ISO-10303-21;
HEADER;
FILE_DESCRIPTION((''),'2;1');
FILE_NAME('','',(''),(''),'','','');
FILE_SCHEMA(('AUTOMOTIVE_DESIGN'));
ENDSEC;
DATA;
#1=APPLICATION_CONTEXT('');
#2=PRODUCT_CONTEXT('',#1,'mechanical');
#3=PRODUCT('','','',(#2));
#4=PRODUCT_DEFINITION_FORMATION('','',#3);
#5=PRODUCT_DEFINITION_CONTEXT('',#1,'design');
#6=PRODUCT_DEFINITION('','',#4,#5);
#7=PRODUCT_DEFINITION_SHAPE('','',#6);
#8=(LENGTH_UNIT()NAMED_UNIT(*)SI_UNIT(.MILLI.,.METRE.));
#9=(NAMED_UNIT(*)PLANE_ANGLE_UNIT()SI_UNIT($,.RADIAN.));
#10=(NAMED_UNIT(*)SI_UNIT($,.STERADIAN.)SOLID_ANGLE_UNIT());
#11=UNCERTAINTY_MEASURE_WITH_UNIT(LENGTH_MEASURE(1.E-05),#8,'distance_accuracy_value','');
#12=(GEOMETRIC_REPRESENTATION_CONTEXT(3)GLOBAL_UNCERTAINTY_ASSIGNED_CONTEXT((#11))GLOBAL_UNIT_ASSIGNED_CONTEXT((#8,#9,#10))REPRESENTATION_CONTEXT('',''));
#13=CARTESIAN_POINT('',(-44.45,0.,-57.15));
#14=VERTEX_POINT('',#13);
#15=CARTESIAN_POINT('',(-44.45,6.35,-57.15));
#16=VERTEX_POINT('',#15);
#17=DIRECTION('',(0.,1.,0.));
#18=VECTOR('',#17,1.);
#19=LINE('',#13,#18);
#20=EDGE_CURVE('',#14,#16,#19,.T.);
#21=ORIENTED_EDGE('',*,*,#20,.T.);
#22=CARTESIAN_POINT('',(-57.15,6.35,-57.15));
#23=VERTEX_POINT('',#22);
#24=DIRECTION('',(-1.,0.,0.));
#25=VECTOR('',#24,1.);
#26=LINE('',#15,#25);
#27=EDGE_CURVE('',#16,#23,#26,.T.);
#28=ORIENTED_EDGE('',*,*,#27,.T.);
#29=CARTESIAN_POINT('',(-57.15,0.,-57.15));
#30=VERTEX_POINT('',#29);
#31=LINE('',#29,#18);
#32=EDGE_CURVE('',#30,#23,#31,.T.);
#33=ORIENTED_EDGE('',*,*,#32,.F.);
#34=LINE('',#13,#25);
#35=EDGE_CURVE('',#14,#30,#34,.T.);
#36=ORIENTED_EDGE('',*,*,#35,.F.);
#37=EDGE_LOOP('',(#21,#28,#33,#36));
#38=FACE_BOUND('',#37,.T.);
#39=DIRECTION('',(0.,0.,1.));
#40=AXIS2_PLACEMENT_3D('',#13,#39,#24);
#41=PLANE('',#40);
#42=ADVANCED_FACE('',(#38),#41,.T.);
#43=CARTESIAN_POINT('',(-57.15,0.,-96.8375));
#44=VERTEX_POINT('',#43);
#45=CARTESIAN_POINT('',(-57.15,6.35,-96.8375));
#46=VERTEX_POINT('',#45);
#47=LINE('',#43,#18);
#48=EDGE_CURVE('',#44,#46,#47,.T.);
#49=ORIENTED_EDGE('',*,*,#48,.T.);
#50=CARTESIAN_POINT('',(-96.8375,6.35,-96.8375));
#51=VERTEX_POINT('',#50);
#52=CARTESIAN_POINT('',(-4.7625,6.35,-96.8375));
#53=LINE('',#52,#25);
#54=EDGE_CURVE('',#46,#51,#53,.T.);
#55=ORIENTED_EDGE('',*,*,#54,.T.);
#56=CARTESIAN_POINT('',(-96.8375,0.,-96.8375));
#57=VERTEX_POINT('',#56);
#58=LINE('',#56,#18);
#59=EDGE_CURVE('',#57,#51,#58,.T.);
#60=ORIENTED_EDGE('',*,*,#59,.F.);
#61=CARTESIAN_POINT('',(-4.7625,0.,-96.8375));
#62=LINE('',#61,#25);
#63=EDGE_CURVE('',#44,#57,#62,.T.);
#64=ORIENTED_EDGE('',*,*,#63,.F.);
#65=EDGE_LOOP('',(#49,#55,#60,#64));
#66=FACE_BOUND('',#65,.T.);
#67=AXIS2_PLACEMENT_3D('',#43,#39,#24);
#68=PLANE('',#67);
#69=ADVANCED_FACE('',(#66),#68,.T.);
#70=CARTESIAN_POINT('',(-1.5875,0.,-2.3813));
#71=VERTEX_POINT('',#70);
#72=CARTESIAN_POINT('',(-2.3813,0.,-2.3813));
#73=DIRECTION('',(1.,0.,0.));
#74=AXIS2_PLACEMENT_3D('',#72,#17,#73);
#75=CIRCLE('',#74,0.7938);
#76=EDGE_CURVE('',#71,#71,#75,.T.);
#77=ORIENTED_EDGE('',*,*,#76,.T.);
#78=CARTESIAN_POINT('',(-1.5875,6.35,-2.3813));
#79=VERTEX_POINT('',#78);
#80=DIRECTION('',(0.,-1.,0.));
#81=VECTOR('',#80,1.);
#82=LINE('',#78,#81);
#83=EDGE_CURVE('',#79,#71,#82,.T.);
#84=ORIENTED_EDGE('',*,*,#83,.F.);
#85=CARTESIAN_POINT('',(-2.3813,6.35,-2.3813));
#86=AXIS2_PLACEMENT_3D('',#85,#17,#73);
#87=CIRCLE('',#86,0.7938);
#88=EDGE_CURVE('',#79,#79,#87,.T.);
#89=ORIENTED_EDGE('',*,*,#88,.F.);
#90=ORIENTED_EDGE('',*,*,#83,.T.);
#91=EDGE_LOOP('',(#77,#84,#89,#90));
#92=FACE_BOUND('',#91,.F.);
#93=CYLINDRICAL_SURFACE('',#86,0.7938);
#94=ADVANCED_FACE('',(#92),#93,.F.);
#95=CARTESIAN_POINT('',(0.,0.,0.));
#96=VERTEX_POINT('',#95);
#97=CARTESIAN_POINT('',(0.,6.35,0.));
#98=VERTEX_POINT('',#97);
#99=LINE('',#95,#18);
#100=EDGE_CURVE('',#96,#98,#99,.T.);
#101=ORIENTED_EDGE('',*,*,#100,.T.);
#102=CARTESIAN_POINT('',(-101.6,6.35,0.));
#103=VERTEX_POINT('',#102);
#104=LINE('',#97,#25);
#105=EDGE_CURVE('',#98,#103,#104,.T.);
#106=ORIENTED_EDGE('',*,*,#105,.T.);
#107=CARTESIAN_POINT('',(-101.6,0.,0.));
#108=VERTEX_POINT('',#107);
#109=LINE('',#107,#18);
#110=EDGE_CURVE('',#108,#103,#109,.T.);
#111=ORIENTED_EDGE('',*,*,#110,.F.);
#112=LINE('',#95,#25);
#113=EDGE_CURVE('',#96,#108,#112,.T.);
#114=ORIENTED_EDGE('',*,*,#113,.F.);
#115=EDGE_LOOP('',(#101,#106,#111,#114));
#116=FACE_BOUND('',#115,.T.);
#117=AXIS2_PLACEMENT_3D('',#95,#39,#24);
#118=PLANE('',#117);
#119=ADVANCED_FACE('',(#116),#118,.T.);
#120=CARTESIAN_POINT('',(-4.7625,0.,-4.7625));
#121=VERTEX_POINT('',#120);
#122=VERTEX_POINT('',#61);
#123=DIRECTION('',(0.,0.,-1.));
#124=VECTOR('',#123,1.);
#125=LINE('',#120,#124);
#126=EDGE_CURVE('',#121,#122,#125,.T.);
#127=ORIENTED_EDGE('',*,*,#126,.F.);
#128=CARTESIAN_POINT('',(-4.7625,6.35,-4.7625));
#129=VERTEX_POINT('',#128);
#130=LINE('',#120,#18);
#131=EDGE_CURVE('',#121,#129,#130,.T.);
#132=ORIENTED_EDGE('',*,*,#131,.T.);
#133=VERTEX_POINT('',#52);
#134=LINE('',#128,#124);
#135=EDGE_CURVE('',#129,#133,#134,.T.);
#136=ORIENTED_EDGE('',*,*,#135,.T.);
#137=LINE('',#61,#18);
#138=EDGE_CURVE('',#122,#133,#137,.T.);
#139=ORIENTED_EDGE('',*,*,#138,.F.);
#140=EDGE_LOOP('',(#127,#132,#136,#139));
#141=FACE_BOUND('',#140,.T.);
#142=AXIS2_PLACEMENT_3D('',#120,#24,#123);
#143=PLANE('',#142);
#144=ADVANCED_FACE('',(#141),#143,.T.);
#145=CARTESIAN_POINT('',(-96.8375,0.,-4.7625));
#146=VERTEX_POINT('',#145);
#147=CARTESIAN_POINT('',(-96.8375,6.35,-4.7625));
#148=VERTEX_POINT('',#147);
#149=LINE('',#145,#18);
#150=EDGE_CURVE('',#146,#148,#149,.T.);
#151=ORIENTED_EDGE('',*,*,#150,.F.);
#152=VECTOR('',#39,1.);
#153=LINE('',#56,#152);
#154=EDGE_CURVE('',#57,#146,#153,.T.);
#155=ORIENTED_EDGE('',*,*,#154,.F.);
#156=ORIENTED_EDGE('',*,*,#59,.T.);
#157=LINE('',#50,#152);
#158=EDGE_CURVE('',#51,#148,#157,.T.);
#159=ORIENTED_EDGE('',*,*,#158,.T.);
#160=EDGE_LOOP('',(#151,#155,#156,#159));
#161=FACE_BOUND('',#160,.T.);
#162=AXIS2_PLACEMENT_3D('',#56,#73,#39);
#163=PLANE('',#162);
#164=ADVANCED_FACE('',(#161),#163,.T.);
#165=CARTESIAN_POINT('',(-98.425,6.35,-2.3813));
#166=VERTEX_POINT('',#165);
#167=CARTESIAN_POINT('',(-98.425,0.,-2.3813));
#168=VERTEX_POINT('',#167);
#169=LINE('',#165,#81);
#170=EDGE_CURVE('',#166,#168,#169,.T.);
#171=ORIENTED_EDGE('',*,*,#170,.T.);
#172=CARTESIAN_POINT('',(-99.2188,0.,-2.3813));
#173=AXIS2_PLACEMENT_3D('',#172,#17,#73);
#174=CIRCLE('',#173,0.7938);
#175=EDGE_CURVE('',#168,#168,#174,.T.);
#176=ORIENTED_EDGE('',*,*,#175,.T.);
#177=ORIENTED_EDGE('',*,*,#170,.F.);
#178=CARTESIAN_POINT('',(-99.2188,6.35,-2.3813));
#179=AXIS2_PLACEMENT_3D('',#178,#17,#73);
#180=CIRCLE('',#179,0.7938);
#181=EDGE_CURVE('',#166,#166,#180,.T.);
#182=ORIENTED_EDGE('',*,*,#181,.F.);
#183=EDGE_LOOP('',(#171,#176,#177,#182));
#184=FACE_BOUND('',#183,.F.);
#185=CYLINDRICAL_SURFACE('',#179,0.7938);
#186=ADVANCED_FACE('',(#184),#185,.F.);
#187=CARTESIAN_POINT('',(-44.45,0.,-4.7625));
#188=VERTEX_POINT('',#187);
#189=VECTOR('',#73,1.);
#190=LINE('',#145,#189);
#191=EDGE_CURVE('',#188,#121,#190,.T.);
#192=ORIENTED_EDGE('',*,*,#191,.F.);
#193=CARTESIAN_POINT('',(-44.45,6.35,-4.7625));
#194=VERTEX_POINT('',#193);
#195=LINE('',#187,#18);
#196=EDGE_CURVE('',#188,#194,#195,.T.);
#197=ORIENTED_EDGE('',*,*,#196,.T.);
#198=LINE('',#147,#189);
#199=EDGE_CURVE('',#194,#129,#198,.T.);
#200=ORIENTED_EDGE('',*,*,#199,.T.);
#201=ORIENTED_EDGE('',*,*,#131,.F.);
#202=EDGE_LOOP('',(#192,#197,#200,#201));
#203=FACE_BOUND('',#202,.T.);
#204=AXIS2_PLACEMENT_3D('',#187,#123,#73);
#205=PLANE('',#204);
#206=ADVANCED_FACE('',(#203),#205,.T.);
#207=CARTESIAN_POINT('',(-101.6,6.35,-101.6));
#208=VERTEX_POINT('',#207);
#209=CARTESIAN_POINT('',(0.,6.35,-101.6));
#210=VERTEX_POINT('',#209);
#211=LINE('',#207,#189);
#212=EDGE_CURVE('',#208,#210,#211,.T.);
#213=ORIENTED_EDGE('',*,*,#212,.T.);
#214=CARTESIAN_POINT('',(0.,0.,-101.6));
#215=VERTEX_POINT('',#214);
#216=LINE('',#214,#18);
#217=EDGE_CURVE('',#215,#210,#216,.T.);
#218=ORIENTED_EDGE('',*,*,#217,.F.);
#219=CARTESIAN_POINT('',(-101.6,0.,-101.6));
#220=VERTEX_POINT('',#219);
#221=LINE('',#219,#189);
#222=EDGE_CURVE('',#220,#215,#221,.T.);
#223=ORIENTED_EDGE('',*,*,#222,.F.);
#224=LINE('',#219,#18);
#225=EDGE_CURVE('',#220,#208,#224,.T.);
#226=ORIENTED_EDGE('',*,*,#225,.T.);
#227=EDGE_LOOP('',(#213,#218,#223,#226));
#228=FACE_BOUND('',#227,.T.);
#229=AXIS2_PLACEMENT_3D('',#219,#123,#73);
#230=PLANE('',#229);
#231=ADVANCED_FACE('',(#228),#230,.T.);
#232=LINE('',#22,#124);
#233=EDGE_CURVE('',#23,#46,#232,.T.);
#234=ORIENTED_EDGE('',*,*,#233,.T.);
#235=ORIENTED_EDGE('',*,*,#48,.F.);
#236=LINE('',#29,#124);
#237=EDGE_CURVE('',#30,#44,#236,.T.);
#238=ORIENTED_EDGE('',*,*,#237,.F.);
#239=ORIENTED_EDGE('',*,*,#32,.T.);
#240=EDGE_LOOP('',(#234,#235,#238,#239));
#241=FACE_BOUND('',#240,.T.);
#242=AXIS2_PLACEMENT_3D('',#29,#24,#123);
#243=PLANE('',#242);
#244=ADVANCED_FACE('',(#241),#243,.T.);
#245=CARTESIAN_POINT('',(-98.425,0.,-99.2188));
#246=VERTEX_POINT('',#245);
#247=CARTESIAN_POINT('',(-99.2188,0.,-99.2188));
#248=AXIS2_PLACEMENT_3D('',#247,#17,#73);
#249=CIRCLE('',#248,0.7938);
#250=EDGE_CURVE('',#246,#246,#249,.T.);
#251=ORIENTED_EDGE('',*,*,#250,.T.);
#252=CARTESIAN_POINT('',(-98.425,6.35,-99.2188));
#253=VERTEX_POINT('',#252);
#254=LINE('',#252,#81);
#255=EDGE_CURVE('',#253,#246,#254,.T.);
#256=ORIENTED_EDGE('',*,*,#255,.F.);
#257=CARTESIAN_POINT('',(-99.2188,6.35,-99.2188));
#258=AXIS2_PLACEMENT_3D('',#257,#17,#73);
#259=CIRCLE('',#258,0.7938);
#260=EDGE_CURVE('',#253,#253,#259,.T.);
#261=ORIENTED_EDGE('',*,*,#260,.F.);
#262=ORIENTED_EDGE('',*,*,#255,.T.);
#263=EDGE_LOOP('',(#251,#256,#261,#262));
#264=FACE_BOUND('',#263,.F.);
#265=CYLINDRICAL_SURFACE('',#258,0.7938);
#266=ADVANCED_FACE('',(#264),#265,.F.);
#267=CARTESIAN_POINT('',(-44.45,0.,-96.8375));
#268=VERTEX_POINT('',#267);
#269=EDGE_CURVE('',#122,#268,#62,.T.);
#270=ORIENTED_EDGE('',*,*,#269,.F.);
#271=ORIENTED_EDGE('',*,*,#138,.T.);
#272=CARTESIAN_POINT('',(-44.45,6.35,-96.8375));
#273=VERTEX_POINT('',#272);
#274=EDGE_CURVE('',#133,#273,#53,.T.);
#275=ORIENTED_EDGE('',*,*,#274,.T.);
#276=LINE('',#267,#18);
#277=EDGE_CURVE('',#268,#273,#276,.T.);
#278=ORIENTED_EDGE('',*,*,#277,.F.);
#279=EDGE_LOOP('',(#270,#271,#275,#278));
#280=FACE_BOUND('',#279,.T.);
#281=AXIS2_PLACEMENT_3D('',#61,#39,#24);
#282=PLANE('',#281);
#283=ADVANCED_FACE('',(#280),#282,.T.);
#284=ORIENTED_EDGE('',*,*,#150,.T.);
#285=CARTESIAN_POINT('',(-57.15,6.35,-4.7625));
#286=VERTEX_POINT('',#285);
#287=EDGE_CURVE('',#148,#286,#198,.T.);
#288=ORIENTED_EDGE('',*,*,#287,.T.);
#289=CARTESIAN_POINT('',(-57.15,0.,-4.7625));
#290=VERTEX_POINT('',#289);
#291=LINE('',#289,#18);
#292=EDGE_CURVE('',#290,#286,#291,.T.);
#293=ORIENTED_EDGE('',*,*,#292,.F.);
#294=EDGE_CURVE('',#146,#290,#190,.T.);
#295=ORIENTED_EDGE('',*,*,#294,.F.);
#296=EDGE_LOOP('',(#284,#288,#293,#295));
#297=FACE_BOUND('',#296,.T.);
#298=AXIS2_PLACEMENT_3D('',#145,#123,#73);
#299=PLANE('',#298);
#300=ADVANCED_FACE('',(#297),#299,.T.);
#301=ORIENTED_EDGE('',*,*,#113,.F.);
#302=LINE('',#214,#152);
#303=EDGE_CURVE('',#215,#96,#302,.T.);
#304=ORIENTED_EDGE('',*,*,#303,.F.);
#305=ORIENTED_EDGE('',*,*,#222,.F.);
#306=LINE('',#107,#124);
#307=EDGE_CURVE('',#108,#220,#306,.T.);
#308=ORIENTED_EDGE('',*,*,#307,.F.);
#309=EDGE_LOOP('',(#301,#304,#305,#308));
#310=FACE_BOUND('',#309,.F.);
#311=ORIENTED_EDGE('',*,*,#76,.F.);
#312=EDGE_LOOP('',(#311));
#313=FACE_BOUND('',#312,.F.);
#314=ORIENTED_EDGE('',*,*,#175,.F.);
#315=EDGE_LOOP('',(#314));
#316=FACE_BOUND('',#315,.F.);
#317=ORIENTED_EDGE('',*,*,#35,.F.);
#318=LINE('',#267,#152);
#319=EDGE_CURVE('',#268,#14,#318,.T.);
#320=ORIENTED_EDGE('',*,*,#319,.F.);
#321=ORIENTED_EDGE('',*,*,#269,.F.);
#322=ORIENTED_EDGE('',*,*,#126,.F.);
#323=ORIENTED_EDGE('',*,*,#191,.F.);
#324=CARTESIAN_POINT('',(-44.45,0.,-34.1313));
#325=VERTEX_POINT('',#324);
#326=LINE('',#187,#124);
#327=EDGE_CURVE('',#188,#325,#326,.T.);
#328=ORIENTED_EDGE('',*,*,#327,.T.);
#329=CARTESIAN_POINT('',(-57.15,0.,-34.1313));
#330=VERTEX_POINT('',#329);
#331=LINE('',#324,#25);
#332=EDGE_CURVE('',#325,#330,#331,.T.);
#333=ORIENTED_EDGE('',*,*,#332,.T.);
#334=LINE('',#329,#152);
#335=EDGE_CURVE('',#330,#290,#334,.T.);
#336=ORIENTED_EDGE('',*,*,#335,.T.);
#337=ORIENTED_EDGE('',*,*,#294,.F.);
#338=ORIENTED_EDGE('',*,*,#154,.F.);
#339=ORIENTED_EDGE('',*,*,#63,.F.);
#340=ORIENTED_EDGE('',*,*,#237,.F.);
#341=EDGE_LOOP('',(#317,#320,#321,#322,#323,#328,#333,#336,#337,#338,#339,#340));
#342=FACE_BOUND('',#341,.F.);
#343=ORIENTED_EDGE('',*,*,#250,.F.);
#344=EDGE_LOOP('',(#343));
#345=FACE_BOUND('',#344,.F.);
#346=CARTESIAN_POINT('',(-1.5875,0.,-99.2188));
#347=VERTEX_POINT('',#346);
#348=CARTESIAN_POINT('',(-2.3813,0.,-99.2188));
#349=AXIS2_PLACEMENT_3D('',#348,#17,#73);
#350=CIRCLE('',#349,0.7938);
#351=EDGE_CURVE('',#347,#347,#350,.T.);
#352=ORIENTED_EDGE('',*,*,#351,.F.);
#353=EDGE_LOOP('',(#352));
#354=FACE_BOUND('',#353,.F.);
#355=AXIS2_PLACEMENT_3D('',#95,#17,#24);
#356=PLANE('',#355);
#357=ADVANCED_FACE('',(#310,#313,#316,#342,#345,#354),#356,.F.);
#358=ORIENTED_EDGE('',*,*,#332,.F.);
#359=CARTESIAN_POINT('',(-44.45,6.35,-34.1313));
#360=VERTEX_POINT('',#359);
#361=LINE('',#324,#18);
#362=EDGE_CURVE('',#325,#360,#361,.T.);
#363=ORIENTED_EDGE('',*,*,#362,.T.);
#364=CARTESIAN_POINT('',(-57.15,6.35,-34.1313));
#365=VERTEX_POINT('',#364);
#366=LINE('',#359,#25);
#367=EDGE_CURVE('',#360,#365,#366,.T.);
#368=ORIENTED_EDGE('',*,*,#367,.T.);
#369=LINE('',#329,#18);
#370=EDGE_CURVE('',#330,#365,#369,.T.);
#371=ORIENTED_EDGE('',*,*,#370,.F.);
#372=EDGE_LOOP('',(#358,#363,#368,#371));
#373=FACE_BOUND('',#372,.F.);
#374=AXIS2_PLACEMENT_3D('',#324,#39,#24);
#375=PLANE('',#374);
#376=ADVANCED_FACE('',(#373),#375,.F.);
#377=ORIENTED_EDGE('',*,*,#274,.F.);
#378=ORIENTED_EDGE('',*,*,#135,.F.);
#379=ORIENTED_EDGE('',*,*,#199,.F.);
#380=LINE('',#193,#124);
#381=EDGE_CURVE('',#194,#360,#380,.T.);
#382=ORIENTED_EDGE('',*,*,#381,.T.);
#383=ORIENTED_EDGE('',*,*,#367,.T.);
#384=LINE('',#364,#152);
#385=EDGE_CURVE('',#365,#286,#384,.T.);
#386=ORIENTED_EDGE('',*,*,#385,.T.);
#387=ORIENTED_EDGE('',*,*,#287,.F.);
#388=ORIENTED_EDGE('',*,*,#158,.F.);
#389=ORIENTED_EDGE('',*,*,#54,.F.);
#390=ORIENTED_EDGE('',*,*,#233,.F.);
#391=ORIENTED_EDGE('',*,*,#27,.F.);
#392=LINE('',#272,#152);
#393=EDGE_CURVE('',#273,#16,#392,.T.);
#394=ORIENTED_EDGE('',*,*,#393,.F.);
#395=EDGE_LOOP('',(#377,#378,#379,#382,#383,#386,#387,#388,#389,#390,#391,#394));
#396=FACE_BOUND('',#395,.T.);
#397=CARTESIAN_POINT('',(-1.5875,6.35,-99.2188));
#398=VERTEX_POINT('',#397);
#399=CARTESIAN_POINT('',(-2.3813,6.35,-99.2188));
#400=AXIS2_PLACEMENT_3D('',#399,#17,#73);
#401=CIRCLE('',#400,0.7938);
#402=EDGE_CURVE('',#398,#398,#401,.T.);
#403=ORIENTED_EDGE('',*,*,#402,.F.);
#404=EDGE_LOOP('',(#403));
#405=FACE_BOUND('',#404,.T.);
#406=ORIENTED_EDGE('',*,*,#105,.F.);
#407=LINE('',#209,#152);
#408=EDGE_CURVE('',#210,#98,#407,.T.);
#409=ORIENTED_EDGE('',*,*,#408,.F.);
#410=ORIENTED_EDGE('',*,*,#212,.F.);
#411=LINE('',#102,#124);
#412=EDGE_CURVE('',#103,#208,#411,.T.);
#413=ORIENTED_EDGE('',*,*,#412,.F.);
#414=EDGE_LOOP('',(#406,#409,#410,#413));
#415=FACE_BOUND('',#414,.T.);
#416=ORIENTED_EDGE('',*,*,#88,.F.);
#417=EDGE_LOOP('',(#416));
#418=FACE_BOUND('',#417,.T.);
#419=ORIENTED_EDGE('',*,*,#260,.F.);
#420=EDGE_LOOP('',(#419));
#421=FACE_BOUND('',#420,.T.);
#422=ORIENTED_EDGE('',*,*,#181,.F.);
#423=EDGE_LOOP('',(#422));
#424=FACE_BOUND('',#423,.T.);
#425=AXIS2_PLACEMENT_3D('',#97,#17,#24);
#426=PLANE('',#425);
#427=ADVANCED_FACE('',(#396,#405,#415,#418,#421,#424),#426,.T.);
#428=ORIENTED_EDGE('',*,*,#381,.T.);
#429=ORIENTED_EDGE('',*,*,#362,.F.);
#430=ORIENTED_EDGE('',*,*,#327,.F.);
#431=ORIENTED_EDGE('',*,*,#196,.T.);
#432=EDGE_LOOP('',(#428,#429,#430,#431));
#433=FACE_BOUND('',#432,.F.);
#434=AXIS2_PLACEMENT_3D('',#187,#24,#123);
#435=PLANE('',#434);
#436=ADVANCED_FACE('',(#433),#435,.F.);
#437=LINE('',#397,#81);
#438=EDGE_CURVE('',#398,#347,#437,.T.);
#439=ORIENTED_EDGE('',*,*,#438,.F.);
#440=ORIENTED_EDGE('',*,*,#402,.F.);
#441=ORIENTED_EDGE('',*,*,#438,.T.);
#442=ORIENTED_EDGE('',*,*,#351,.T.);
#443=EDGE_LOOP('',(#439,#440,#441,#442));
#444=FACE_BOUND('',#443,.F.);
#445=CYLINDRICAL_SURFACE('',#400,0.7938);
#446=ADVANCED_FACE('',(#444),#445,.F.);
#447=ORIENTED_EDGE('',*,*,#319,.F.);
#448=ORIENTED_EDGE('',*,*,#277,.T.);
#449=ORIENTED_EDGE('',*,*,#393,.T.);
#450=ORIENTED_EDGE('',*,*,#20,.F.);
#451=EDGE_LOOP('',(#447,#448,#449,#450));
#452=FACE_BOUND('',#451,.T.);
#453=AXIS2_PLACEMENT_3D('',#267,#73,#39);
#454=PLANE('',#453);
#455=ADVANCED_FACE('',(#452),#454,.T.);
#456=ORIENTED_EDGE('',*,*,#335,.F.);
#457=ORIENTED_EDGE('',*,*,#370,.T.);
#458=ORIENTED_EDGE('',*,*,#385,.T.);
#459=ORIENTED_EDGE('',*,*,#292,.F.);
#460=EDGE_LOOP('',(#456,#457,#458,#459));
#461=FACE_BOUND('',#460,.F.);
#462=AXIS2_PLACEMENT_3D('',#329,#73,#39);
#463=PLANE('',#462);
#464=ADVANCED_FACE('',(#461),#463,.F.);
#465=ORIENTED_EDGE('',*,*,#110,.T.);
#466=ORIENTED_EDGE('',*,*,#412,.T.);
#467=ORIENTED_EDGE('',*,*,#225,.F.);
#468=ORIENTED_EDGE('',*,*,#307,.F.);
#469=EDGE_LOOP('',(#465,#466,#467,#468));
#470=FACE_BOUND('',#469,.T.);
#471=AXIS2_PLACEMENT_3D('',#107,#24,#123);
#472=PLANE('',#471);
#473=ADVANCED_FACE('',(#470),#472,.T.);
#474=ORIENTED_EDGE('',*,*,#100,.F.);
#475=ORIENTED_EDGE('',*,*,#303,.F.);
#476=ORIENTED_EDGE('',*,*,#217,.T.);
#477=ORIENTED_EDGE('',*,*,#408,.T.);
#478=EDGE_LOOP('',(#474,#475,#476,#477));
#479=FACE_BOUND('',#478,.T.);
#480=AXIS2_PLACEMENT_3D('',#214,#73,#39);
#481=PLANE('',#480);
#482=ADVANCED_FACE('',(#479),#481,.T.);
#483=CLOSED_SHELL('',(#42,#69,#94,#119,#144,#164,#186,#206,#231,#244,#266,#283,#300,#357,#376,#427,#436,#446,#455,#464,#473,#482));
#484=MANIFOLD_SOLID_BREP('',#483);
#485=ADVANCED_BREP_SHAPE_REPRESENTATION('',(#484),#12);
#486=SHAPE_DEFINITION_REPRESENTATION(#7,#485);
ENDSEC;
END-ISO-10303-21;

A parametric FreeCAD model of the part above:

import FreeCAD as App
import Part
import Sketcher

V = App.Vector
Q = App.Units.Quantity


def add_polygon(sketch, points):
    """Adds a closed chain of lines whose ends are joined by coincident constraints."""
    first, n = sketch.GeometryCount, len(points)
    for a, b in zip(points, points[1:] + points[:1]):
        sketch.addGeometry(Part.LineSegment(App.Vector(*a, 0), App.Vector(*b, 0)), False)
    for i in range(n):
        sketch.addConstraint(Sketcher.Constraint("Coincident", first + i, 2, first + (i + 1) % n, 1))

doc = App.newDocument("Part")
body = doc.addObject("PartDesign::Body", "Body")

sketch1 = body.newObject("Sketcher::SketchObject", "Sketch")
sketch1.AttachmentSupport = (doc.getObject("XZ_Plane"), [""])
sketch1.MapMode = "FlatFace"
add_polygon(sketch1, [(-102, 0), (0, 0), (0, -102), (-102, -102)])
add_polygon(sketch1, [(-44, -97), (-5, -97), (-5, -5), (-44, -5), (-44, -34), (-57, -34), (-57, -5), (-97, -5), (-97, -97), (-57, -97), (-57, -57), (-44, -57)])
sketch1.addConstraint([
    Sketcher.Constraint("Horizontal", 0),
    Sketcher.Constraint("Vertical", 1),
    Sketcher.Constraint("Horizontal", 2),
    Sketcher.Constraint("Vertical", 3),
    Sketcher.Constraint("Horizontal", 4),
    Sketcher.Constraint("Vertical", 5),
    Sketcher.Constraint("Horizontal", 6),
    Sketcher.Constraint("Vertical", 7),
    Sketcher.Constraint("Horizontal", 8),
    Sketcher.Constraint("Vertical", 9),
    Sketcher.Constraint("Horizontal", 10),
    Sketcher.Constraint("Vertical", 11),
    Sketcher.Constraint("Horizontal", 12),
    Sketcher.Constraint("Vertical", 13),
    Sketcher.Constraint("Horizontal", 14),
    Sketcher.Constraint("Vertical", 15),
    Sketcher.Constraint("Coincident", 0, 2, -1, 1),
    Sketcher.Constraint("Horizontal", 6, 2, 9, 2),
    Sketcher.Constraint("Horizontal", 4, 2, 11, 2),
    Sketcher.Constraint("Vertical", 9, 2, 12, 2),
    Sketcher.Constraint("Vertical", 7, 2, 14, 2),
    Sketcher.Constraint("Equal", 6, 10),
    Sketcher.Constraint("Equal", 2, 1),
    Sketcher.Constraint("Equal", 12, 13),
    Sketcher.Constraint("DistanceX", 0, 1, 0, 2, Q("4 in")),
    Sketcher.Constraint("DistanceX", 8, 2, 8, 1, Q("0.5 in")),
    Sketcher.Constraint("DistanceX", 4, 1, 4, 2, Q("1.5625 in")),
    Sketcher.Constraint("DistanceY", 7, 2, 7, 1, Q("1.156252 in")),
    Sketcher.Constraint("DistanceX", 4, 2, -1, 1, Q("0.1875 in")),
    Sketcher.Constraint("DistanceY", 5, 2, -1, 1, Q("0.1875 in")),
    Sketcher.Constraint("DistanceY", 1, 2, 4, 2, Q("0.1875 in")),
])
pad1 = body.newObject("PartDesign::Pad", "Pad")
pad1.Profile = sketch1
pad1.Length = Q("0.25 in")
pad1.Reversed = True

sketch2 = body.newObject("Sketcher::SketchObject", "Sketch001")
sketch2.AttachmentSupport = (doc.getObject("XZ_Plane"), [""])
sketch2.MapMode = "FlatFace"
sketch2.AttachmentOffset = App.Placement(V(0, 0, -0.25 * 25.4), App.Rotation())
sketch2.addGeometry([
    Part.Circle(V(-99.2, -99.2, 0), V(0, 0, 1), 0.8),
    Part.Circle(V(-99.2, -2.4, 0), V(0, 0, 1), 0.8),
    Part.Circle(V(-2.4, -99.2, 0), V(0, 0, 1), 0.8),
    Part.Circle(V(-2.4, -2.4, 0), V(0, 0, 1), 0.8),
], False)
sketch2.addConstraint([
    Sketcher.Constraint("Equal", 0, 1),
    Sketcher.Constraint("Equal", 1, 2),
    Sketcher.Constraint("Equal", 2, 3),
    Sketcher.Constraint("Horizontal", 0, 3, 2, 3),
    Sketcher.Constraint("Horizontal", 1, 3, 3, 3),
    Sketcher.Constraint("Vertical", 0, 3, 1, 3),
    Sketcher.Constraint("Vertical", 2, 3, 3, 3),
    Sketcher.Constraint("Diameter", 0, Q("0.0625 in")),
    Sketcher.Constraint("DistanceY", 1, 3, -1, 1, Q("0.093752 in")),
    Sketcher.Constraint("DistanceX", 2, 3, -1, 1, Q("0.093752 in")),
    Sketcher.Constraint("DistanceY", 0, 3, 1, 3, Q("3.8125 in")),
    Sketcher.Constraint("DistanceX", 0, 3, 2, 3, Q("3.8125 in")),
])
pocket1 = body.newObject("PartDesign::Pocket", "Pocket")
pocket1.Profile = sketch2
pocket1.Length = Q("0.25 in")
pocket1.Reversed = True

doc.recompute()
